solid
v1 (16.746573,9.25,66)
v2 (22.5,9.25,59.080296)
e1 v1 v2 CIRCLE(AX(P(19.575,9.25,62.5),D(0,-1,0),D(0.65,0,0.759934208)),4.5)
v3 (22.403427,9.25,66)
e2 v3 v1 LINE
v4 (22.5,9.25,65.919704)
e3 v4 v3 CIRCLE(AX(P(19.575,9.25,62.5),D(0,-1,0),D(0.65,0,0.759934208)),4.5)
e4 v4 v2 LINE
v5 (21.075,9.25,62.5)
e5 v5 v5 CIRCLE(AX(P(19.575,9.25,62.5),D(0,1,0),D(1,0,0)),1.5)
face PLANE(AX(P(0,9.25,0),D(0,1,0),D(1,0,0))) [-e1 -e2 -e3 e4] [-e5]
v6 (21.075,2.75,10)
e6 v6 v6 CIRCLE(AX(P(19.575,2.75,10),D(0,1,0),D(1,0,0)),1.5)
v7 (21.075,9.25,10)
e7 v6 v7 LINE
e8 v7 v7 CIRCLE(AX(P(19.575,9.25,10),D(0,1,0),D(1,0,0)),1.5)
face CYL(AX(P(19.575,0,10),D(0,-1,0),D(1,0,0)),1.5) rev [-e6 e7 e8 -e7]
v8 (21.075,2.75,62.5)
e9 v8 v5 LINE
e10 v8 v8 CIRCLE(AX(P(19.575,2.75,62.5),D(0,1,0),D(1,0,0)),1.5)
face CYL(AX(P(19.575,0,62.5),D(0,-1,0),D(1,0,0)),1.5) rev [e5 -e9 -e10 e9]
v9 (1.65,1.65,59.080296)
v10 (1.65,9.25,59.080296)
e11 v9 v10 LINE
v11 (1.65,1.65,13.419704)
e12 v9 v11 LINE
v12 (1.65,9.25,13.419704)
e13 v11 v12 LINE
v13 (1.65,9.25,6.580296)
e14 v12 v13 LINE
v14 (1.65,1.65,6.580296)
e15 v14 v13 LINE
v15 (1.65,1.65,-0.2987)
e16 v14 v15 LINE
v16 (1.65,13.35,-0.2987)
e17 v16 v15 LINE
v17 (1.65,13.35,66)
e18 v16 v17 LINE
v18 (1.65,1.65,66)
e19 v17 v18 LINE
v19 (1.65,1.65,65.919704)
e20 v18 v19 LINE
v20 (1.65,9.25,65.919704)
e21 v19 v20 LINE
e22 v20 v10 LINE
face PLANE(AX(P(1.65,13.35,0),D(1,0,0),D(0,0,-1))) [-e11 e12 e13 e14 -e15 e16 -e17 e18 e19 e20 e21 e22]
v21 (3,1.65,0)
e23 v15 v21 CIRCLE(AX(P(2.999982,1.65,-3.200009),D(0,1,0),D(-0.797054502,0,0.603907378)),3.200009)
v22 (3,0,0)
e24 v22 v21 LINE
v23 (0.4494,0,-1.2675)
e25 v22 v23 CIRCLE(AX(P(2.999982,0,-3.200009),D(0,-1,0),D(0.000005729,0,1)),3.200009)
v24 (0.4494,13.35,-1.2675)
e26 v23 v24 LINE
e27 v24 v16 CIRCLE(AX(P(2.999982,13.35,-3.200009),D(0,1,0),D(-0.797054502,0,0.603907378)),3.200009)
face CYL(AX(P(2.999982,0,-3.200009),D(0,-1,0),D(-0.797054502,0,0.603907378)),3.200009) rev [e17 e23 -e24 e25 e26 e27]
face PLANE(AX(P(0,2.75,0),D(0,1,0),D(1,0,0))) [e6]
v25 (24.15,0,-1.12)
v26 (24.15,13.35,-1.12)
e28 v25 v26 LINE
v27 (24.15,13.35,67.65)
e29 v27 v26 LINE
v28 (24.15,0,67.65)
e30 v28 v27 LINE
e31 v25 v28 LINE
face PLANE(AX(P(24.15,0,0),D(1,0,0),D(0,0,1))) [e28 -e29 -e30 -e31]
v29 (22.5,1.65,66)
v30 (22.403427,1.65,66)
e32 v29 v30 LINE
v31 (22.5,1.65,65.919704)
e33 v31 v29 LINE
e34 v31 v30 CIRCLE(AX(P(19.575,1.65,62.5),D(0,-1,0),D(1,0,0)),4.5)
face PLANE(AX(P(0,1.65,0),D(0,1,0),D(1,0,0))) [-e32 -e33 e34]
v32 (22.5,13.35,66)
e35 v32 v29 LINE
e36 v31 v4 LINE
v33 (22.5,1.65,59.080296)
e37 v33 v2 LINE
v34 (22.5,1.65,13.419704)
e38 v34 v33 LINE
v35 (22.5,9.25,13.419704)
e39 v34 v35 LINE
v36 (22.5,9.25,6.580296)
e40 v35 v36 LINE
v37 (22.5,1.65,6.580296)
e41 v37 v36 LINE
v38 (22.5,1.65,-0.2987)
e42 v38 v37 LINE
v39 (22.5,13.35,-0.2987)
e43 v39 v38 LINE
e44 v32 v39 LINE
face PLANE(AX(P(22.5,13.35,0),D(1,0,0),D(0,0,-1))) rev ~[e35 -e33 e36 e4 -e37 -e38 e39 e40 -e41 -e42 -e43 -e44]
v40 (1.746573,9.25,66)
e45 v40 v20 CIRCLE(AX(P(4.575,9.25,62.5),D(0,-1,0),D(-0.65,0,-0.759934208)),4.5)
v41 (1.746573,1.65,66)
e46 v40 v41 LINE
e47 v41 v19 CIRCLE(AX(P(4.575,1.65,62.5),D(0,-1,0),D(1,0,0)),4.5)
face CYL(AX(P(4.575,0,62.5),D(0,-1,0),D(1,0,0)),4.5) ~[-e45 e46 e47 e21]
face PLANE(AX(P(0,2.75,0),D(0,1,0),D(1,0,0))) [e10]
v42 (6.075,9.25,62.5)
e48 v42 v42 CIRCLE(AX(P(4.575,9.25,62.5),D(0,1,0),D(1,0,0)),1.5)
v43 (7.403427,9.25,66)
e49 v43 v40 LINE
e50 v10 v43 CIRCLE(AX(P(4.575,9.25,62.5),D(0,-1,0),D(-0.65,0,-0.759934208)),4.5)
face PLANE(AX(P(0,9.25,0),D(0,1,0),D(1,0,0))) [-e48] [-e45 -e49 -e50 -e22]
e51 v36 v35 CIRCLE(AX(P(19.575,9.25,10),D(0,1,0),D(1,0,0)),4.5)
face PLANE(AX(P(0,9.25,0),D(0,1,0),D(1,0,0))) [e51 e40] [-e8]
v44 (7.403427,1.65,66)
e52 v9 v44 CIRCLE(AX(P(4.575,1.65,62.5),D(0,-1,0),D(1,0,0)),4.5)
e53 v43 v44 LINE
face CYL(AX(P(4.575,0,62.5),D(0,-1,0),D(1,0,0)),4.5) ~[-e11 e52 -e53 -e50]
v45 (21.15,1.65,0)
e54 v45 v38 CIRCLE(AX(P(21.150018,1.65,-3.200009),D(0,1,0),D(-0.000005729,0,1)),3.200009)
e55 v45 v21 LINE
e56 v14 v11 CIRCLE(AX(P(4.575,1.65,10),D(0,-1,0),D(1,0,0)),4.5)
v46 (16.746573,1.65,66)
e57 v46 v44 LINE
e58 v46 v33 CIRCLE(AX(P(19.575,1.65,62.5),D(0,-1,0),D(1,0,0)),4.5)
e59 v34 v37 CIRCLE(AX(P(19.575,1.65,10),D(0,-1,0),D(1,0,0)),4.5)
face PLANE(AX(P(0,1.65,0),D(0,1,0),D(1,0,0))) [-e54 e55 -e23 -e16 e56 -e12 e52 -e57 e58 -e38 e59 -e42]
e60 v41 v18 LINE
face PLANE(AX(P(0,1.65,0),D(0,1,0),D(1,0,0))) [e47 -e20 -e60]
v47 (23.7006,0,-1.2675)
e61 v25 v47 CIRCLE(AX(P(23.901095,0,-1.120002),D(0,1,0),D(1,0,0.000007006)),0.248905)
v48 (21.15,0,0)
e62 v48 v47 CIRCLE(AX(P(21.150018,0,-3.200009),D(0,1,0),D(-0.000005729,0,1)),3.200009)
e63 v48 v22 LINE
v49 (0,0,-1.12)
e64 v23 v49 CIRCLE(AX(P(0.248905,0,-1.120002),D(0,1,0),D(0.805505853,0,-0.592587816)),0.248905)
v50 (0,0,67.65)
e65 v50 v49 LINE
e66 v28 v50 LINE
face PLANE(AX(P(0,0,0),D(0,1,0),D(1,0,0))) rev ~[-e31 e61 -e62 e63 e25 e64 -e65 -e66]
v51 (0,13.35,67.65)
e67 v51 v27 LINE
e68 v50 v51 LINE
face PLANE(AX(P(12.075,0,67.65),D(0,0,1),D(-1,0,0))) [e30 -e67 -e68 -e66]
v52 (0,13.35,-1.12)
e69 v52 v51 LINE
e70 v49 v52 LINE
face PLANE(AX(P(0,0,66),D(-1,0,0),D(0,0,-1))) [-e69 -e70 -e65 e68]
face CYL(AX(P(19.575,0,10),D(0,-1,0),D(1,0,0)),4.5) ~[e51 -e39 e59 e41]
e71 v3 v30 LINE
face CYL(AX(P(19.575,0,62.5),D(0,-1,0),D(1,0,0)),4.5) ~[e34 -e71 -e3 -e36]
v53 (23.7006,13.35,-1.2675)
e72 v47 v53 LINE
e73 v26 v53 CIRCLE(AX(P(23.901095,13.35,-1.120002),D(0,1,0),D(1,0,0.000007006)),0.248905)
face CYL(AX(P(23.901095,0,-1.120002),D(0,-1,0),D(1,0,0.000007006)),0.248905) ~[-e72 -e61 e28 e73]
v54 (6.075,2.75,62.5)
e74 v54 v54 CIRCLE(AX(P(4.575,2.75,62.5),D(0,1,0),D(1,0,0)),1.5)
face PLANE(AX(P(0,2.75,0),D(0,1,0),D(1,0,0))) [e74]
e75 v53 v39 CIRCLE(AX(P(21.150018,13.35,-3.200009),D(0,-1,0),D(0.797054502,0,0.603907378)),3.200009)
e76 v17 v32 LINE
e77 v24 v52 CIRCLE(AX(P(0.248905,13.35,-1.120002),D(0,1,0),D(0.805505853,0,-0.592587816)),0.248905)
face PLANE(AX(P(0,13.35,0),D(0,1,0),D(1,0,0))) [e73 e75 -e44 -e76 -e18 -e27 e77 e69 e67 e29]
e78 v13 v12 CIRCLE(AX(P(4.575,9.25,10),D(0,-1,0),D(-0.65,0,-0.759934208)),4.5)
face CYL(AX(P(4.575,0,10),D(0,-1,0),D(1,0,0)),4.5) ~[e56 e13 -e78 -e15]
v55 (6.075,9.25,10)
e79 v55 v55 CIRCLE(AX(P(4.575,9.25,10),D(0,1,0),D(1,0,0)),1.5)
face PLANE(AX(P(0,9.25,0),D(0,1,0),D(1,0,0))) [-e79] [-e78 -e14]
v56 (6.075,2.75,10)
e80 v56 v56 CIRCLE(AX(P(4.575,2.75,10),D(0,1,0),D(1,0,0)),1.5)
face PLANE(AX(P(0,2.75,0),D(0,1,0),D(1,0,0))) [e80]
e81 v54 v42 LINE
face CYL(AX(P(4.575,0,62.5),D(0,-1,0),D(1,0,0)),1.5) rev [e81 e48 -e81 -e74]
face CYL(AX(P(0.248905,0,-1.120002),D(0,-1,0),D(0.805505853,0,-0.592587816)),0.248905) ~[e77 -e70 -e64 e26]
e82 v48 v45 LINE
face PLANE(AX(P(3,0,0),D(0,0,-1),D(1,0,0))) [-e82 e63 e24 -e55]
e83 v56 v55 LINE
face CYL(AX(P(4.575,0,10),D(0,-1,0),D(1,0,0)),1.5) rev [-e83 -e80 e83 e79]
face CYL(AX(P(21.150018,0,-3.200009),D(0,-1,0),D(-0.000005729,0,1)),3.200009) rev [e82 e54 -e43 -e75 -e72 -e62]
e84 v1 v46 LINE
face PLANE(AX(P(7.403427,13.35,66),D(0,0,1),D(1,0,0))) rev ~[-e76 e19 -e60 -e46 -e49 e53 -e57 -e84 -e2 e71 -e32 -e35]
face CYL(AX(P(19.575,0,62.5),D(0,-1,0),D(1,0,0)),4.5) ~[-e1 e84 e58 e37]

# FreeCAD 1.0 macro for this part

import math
import FreeCAD as App
import Part
import Sketcher
from FreeCAD import Vector

doc = App.newDocument("Part")
body = doc.addObject("PartDesign::Body", "Body")

# Sketch on XZ plane
sketch1 = doc.addObject("Sketcher::SketchObject", "Sketch")
body.addObject(sketch1)
sketch1.AttachmentSupport = (doc.XZ_Plane, [""])
sketch1.MapMode = "FlatFace"
sketch1.addGeometry(Part.ArcOfCircle(Part.Circle(Vector(3, -3.2, 0), Vector(0, 0, 1), 3.2), math.radians(90), math.radians(143)), False)
sketch1.addGeometry(Part.ArcOfCircle(Part.Circle(Vector(0.25, -1.12, 0), Vector(0, 0, 1), 0.25), math.radians(180), math.radians(324)), False)
sketch1.addGeometry(Part.LineSegment(Vector(0, -1.12, 0), Vector(0, 67.65, 0)), False)
sketch1.addGeometry(Part.LineSegment(Vector(0, 67.65, 0), Vector(24.15, 67.65, 0)), False)
sketch1.addGeometry(Part.LineSegment(Vector(24.15, 67.65, 0), Vector(24.15, -1.12, 0)), False)
sketch1.addGeometry(Part.ArcOfCircle(Part.Circle(Vector(23.9, -1.12, 0), Vector(0, 0, 1), 0.25), math.radians(-144), math.radians(0)), False)
sketch1.addGeometry(Part.ArcOfCircle(Part.Circle(Vector(21.15, -3.2, 0), Vector(0, 0, 1), 3.2), math.radians(37), math.radians(90)), False)
sketch1.addGeometry(Part.LineSegment(Vector(21.15, 0, 0), Vector(3, 0, 0)), False)
sketch1.addConstraint(Sketcher.Constraint("Coincident", 0, 2, 1, 2))
sketch1.addConstraint(Sketcher.Constraint("Tangent", 1, 1, 2, 1))
sketch1.addConstraint(Sketcher.Constraint("Coincident", 2, 2, 3, 1))
sketch1.addConstraint(Sketcher.Constraint("Coincident", 3, 2, 4, 1))
sketch1.addConstraint(Sketcher.Constraint("Tangent", 4, 2, 5, 2))
sketch1.addConstraint(Sketcher.Constraint("Coincident", 5, 1, 6, 1))
sketch1.addConstraint(Sketcher.Constraint("Tangent", 6, 2, 7, 1))
sketch1.addConstraint(Sketcher.Constraint("Tangent", 7, 2, 0, 1))
sketch1.addConstraint(Sketcher.Constraint("Vertical", 2))
sketch1.addConstraint(Sketcher.Constraint("Horizontal", 3))
sketch1.addConstraint(Sketcher.Constraint("Vertical", 4))
sketch1.addConstraint(Sketcher.Constraint("Horizontal", 7))
sketch1.addConstraint(Sketcher.Constraint("Equal", 1, 5))
sketch1.addConstraint(Sketcher.Constraint("Equal", 0, 6))
sketch1.addConstraint(Sketcher.Constraint("PointOnObject", 1, 1, -2))
sketch1.addConstraint(Sketcher.Constraint("PointOnObject", 6, 2, -1))
sketch1.addConstraint(Sketcher.Constraint("Horizontal", 1, 3, 5, 3))
sketch1.addConstraint(Sketcher.Constraint("Horizontal", 0, 2, 5, 1))
sketch1.addConstraint(Sketcher.Constraint("Radius", 0, 3.2))
sketch1.addConstraint(Sketcher.Constraint("DistanceX", -1, 1, 0, 3, 3.0))
sketch1.addConstraint(Sketcher.Constraint("DistanceX", 3, 1, 3, 2, 24.15))
sketch1.addConstraint(Sketcher.Constraint("DistanceY", 1, 3, -1, 1, 1.12))
sketch1.addConstraint(Sketcher.Constraint("DistanceY", 2, 1, 2, 2, 68.77))
sketch1.addConstraint(Sketcher.Constraint("DistanceX", -1, 1, 0, 2, 0.4494))
pad1 = doc.addObject("PartDesign::Pad", "Pad")
body.addObject(pad1)
pad1.Profile = sketch1
pad1.Length = 13.35
pad1.Reversed = True

# Sketch on XZ plane
sketch2 = doc.addObject("Sketcher::SketchObject", "Sketch001")
body.addObject(sketch2)
sketch2.AttachmentSupport = (doc.XZ_Plane, [""])
sketch2.MapMode = "FlatFace"
sketch2.AttachmentOffset = App.Placement(Vector(0, 0, -13.35), App.Rotation())
sketch2.addGeometry(Part.ArcOfCircle(Part.Circle(Vector(3, -3.2, 0), Vector(0, 0, 1), 3.2), math.radians(90), math.radians(115)), False)
sketch2.addGeometry(Part.LineSegment(Vector(1.6, -0.3, 0), Vector(1.6, 66, 0)), False)
sketch2.addGeometry(Part.LineSegment(Vector(1.6, 66, 0), Vector(22.5, 66, 0)), False)
sketch2.addGeometry(Part.LineSegment(Vector(22.5, 66, 0), Vector(22.5, -0.3, 0)), False)
sketch2.addGeometry(Part.ArcOfCircle(Part.Circle(Vector(21.1, -3.2, 0), Vector(0, 0, 1), 3.2), math.radians(65), math.radians(90)), False)
sketch2.addGeometry(Part.LineSegment(Vector(21.1, 0, 0), Vector(3, 0, 0)), False)
sketch2.addConstraint(Sketcher.Constraint("Coincident", 0, 2, 1, 1))
sketch2.addConstraint(Sketcher.Constraint("Coincident", 1, 2, 2, 1))
sketch2.addConstraint(Sketcher.Constraint("Coincident", 2, 2, 3, 1))
sketch2.addConstraint(Sketcher.Constraint("Coincident", 3, 2, 4, 1))
sketch2.addConstraint(Sketcher.Constraint("Tangent", 4, 2, 5, 1))
sketch2.addConstraint(Sketcher.Constraint("Tangent", 5, 2, 0, 1))
sketch2.addConstraint(Sketcher.Constraint("Vertical", 1))
sketch2.addConstraint(Sketcher.Constraint("Horizontal", 2))
sketch2.addConstraint(Sketcher.Constraint("Vertical", 3))
sketch2.addConstraint(Sketcher.Constraint("Horizontal", 5))
sketch2.addConstraint(Sketcher.Constraint("Equal", 0, 4))
sketch2.addConstraint(Sketcher.Constraint("PointOnObject", 4, 2, -1))
sketch2.addConstraint(Sketcher.Constraint("Horizontal", 0, 2, 3, 2))
sketch2.addConstraint(Sketcher.Constraint("Radius", 0, 3.2))
sketch2.addConstraint(Sketcher.Constraint("DistanceX", -1, 1, 0, 3, 3.0))
sketch2.addConstraint(Sketcher.Constraint("DistanceY", -1, 1, 1, 2, 66.0))
sketch2.addConstraint(Sketcher.Constraint("DistanceX", -1, 1, 0, 2, 1.65))
sketch2.addConstraint(Sketcher.Constraint("DistanceX", 2, 1, 2, 2, 20.85))
pocket1 = doc.addObject("PartDesign::Pocket", "Pocket")
body.addObject(pocket1)
pocket1.Profile = sketch2
pocket1.Length = 11.7
pocket1.Reversed = True

# Sketch on XZ plane
sketch3 = doc.addObject("Sketcher::SketchObject", "Sketch002")
body.addObject(sketch3)
sketch3.AttachmentSupport = (doc.XZ_Plane, [""])
sketch3.MapMode = "FlatFace"
sketch3.addGeometry(Part.ArcOfCircle(Part.Circle(Vector(4.6, 10, 0), Vector(0, 0, 1), 4.5), math.radians(-131), math.radians(131)), False)
sketch3.addGeometry(Part.LineSegment(Vector(1.6, 6.6, 0), Vector(1.6, 13.4, 0)), False)
sketch3.addGeometry(Part.Circle(Vector(4.6, 10, 0), Vector(0, 0, 1), 1.5), False)
sketch3.addGeometry(Part.LineSegment(Vector(1.6, 59.1, 0), Vector(1.6, 65.9, 0)), False)
sketch3.addGeometry(Part.ArcOfCircle(Part.Circle(Vector(4.6, 62.5, 0), Vector(0, 0, 1), 4.5), math.radians(-131), math.radians(131)), False)
sketch3.addGeometry(Part.Circle(Vector(4.6, 62.5, 0), Vector(0, 0, 1), 1.5), False)
sketch3.addGeometry(Part.ArcOfCircle(Part.Circle(Vector(19.6, 62.5, 0), Vector(0, 0, 1), 4.5), math.radians(49), math.radians(311)), False)
sketch3.addGeometry(Part.LineSegment(Vector(22.5, 65.9, 0), Vector(22.5, 59.1, 0)), False)
sketch3.addGeometry(Part.Circle(Vector(19.6, 62.5, 0), Vector(0, 0, 1), 1.5), False)
sketch3.addGeometry(Part.LineSegment(Vector(22.5, 13.4, 0), Vector(22.5, 6.6, 0)), False)
sketch3.addGeometry(Part.ArcOfCircle(Part.Circle(Vector(19.6, 10, 0), Vector(0, 0, 1), 4.5), math.radians(49), math.radians(311)), False)
sketch3.addGeometry(Part.Circle(Vector(19.6, 10, 0), Vector(0, 0, 1), 1.5), False)
sketch3.addConstraint(Sketcher.Constraint("Coincident", 0, 1, 1, 1))
sketch3.addConstraint(Sketcher.Constraint("Coincident", 1, 2, 0, 2))
sketch3.addConstraint(Sketcher.Constraint("Coincident", 3, 1, 4, 1))
sketch3.addConstraint(Sketcher.Constraint("Coincident", 4, 2, 3, 2))
sketch3.addConstraint(Sketcher.Constraint("Coincident", 6, 1, 7, 1))
sketch3.addConstraint(Sketcher.Constraint("Coincident", 7, 2, 6, 2))
sketch3.addConstraint(Sketcher.Constraint("Coincident", 9, 1, 10, 1))
sketch3.addConstraint(Sketcher.Constraint("Coincident", 10, 2, 9, 2))
sketch3.addConstraint(Sketcher.Constraint("Vertical", 1))
sketch3.addConstraint(Sketcher.Constraint("Vertical", 3))
sketch3.addConstraint(Sketcher.Constraint("Vertical", 7))
sketch3.addConstraint(Sketcher.Constraint("Vertical", 9))
sketch3.addConstraint(Sketcher.Constraint("Coincident", 2, 3, 0, 3))
sketch3.addConstraint(Sketcher.Constraint("Coincident", 5, 3, 4, 3))
sketch3.addConstraint(Sketcher.Constraint("Coincident", 8, 3, 6, 3))
sketch3.addConstraint(Sketcher.Constraint("Coincident", 11, 3, 10, 3))
sketch3.addConstraint(Sketcher.Constraint("Equal", 0, 4))
sketch3.addConstraint(Sketcher.Constraint("Equal", 2, 5))
sketch3.addConstraint(Sketcher.Constraint("Equal", 4, 6))
sketch3.addConstraint(Sketcher.Constraint("Equal", 5, 8))
sketch3.addConstraint(Sketcher.Constraint("Equal", 6, 10))
sketch3.addConstraint(Sketcher.Constraint("Equal", 8, 11))
sketch3.addConstraint(Sketcher.Constraint("Horizontal", 5, 3, 6, 3))
sketch3.addConstraint(Sketcher.Constraint("Horizontal", 2, 3, 10, 3))
sketch3.addConstraint(Sketcher.Constraint("Horizontal", 4, 2, 6, 1))
sketch3.addConstraint(Sketcher.Constraint("Horizontal", 1, 2, 9, 1))
sketch3.addConstraint(Sketcher.Constraint("Vertical", 2, 3, 4, 3))
sketch3.addConstraint(Sketcher.Constraint("Vertical", 8, 3, 10, 3))
sketch3.addConstraint(Sketcher.Constraint("Vertical", 1, 2, 3, 1))
sketch3.addConstraint(Sketcher.Constraint("Diameter", 2, 3.0))
sketch3.addConstraint(Sketcher.Constraint("Radius", 0, 4.5))
sketch3.addConstraint(Sketcher.Constraint("DistanceY", -1, 1, 0, 3, 10.0))
sketch3.addConstraint(Sketcher.Constraint("DistanceY", -1, 1, 4, 3, 62.5))
sketch3.addConstraint(Sketcher.Constraint("DistanceX", -1, 1, 0, 1, 1.65))
sketch3.addConstraint(Sketcher.Constraint("DistanceX", 4, 3, 6, 3, 15.0))
sketch3.addConstraint(Sketcher.Constraint("DistanceX", -1, 1, 6, 1, 22.5))
pad2 = doc.addObject("PartDesign::Pad", "Pad001")
body.addObject(pad2)
pad2.Profile = sketch3
pad2.Length = 9.25
pad2.Reversed = True

# Sketch on XZ plane
sketch4 = doc.addObject("Sketcher::SketchObject", "Sketch003")
body.addObject(sketch4)
sketch4.AttachmentSupport = (doc.XZ_Plane, [""])
sketch4.MapMode = "FlatFace"
sketch4.addGeometry(Part.Circle(Vector(19.6, 10, 0), Vector(0, 0, 1), 1.5), False)
sketch4.addGeometry(Part.Circle(Vector(19.6, 62.5, 0), Vector(0, 0, 1), 1.5), False)
sketch4.addGeometry(Part.Circle(Vector(4.6, 62.5, 0), Vector(0, 0, 1), 1.5), False)
sketch4.addGeometry(Part.Circle(Vector(4.6, 10, 0), Vector(0, 0, 1), 1.5), False)
sketch4.addConstraint(Sketcher.Constraint("Equal", 0, 1))
sketch4.addConstraint(Sketcher.Constraint("Equal", 1, 2))
sketch4.addConstraint(Sketcher.Constraint("Equal", 2, 3))
sketch4.addConstraint(Sketcher.Constraint("Horizontal", 1, 3, 2, 3))
sketch4.addConstraint(Sketcher.Constraint("Horizontal", 0, 3, 3, 3))
sketch4.addConstraint(Sketcher.Constraint("Vertical", 0, 3, 1, 3))
sketch4.addConstraint(Sketcher.Constraint("Vertical", 2, 3, 3, 3))
sketch4.addConstraint(Sketcher.Constraint("Diameter", 0, 3.0))
sketch4.addConstraint(Sketcher.Constraint("DistanceY", -1, 1, 0, 3, 10.0))
sketch4.addConstraint(Sketcher.Constraint("DistanceY", -1, 1, 1, 3, 62.5))
sketch4.addConstraint(Sketcher.Constraint("DistanceX", 2, 3, 1, 3, 15.0))
sketch4.addConstraint(Sketcher.Constraint("DistanceX", -1, 1, 0, 3, 19.575))
pad3 = doc.addObject("PartDesign::Pad", "Pad002")
body.addObject(pad3)
pad3.Profile = sketch4
pad3.Length = 2.75
pad3.Reversed = True

doc.recompute()
